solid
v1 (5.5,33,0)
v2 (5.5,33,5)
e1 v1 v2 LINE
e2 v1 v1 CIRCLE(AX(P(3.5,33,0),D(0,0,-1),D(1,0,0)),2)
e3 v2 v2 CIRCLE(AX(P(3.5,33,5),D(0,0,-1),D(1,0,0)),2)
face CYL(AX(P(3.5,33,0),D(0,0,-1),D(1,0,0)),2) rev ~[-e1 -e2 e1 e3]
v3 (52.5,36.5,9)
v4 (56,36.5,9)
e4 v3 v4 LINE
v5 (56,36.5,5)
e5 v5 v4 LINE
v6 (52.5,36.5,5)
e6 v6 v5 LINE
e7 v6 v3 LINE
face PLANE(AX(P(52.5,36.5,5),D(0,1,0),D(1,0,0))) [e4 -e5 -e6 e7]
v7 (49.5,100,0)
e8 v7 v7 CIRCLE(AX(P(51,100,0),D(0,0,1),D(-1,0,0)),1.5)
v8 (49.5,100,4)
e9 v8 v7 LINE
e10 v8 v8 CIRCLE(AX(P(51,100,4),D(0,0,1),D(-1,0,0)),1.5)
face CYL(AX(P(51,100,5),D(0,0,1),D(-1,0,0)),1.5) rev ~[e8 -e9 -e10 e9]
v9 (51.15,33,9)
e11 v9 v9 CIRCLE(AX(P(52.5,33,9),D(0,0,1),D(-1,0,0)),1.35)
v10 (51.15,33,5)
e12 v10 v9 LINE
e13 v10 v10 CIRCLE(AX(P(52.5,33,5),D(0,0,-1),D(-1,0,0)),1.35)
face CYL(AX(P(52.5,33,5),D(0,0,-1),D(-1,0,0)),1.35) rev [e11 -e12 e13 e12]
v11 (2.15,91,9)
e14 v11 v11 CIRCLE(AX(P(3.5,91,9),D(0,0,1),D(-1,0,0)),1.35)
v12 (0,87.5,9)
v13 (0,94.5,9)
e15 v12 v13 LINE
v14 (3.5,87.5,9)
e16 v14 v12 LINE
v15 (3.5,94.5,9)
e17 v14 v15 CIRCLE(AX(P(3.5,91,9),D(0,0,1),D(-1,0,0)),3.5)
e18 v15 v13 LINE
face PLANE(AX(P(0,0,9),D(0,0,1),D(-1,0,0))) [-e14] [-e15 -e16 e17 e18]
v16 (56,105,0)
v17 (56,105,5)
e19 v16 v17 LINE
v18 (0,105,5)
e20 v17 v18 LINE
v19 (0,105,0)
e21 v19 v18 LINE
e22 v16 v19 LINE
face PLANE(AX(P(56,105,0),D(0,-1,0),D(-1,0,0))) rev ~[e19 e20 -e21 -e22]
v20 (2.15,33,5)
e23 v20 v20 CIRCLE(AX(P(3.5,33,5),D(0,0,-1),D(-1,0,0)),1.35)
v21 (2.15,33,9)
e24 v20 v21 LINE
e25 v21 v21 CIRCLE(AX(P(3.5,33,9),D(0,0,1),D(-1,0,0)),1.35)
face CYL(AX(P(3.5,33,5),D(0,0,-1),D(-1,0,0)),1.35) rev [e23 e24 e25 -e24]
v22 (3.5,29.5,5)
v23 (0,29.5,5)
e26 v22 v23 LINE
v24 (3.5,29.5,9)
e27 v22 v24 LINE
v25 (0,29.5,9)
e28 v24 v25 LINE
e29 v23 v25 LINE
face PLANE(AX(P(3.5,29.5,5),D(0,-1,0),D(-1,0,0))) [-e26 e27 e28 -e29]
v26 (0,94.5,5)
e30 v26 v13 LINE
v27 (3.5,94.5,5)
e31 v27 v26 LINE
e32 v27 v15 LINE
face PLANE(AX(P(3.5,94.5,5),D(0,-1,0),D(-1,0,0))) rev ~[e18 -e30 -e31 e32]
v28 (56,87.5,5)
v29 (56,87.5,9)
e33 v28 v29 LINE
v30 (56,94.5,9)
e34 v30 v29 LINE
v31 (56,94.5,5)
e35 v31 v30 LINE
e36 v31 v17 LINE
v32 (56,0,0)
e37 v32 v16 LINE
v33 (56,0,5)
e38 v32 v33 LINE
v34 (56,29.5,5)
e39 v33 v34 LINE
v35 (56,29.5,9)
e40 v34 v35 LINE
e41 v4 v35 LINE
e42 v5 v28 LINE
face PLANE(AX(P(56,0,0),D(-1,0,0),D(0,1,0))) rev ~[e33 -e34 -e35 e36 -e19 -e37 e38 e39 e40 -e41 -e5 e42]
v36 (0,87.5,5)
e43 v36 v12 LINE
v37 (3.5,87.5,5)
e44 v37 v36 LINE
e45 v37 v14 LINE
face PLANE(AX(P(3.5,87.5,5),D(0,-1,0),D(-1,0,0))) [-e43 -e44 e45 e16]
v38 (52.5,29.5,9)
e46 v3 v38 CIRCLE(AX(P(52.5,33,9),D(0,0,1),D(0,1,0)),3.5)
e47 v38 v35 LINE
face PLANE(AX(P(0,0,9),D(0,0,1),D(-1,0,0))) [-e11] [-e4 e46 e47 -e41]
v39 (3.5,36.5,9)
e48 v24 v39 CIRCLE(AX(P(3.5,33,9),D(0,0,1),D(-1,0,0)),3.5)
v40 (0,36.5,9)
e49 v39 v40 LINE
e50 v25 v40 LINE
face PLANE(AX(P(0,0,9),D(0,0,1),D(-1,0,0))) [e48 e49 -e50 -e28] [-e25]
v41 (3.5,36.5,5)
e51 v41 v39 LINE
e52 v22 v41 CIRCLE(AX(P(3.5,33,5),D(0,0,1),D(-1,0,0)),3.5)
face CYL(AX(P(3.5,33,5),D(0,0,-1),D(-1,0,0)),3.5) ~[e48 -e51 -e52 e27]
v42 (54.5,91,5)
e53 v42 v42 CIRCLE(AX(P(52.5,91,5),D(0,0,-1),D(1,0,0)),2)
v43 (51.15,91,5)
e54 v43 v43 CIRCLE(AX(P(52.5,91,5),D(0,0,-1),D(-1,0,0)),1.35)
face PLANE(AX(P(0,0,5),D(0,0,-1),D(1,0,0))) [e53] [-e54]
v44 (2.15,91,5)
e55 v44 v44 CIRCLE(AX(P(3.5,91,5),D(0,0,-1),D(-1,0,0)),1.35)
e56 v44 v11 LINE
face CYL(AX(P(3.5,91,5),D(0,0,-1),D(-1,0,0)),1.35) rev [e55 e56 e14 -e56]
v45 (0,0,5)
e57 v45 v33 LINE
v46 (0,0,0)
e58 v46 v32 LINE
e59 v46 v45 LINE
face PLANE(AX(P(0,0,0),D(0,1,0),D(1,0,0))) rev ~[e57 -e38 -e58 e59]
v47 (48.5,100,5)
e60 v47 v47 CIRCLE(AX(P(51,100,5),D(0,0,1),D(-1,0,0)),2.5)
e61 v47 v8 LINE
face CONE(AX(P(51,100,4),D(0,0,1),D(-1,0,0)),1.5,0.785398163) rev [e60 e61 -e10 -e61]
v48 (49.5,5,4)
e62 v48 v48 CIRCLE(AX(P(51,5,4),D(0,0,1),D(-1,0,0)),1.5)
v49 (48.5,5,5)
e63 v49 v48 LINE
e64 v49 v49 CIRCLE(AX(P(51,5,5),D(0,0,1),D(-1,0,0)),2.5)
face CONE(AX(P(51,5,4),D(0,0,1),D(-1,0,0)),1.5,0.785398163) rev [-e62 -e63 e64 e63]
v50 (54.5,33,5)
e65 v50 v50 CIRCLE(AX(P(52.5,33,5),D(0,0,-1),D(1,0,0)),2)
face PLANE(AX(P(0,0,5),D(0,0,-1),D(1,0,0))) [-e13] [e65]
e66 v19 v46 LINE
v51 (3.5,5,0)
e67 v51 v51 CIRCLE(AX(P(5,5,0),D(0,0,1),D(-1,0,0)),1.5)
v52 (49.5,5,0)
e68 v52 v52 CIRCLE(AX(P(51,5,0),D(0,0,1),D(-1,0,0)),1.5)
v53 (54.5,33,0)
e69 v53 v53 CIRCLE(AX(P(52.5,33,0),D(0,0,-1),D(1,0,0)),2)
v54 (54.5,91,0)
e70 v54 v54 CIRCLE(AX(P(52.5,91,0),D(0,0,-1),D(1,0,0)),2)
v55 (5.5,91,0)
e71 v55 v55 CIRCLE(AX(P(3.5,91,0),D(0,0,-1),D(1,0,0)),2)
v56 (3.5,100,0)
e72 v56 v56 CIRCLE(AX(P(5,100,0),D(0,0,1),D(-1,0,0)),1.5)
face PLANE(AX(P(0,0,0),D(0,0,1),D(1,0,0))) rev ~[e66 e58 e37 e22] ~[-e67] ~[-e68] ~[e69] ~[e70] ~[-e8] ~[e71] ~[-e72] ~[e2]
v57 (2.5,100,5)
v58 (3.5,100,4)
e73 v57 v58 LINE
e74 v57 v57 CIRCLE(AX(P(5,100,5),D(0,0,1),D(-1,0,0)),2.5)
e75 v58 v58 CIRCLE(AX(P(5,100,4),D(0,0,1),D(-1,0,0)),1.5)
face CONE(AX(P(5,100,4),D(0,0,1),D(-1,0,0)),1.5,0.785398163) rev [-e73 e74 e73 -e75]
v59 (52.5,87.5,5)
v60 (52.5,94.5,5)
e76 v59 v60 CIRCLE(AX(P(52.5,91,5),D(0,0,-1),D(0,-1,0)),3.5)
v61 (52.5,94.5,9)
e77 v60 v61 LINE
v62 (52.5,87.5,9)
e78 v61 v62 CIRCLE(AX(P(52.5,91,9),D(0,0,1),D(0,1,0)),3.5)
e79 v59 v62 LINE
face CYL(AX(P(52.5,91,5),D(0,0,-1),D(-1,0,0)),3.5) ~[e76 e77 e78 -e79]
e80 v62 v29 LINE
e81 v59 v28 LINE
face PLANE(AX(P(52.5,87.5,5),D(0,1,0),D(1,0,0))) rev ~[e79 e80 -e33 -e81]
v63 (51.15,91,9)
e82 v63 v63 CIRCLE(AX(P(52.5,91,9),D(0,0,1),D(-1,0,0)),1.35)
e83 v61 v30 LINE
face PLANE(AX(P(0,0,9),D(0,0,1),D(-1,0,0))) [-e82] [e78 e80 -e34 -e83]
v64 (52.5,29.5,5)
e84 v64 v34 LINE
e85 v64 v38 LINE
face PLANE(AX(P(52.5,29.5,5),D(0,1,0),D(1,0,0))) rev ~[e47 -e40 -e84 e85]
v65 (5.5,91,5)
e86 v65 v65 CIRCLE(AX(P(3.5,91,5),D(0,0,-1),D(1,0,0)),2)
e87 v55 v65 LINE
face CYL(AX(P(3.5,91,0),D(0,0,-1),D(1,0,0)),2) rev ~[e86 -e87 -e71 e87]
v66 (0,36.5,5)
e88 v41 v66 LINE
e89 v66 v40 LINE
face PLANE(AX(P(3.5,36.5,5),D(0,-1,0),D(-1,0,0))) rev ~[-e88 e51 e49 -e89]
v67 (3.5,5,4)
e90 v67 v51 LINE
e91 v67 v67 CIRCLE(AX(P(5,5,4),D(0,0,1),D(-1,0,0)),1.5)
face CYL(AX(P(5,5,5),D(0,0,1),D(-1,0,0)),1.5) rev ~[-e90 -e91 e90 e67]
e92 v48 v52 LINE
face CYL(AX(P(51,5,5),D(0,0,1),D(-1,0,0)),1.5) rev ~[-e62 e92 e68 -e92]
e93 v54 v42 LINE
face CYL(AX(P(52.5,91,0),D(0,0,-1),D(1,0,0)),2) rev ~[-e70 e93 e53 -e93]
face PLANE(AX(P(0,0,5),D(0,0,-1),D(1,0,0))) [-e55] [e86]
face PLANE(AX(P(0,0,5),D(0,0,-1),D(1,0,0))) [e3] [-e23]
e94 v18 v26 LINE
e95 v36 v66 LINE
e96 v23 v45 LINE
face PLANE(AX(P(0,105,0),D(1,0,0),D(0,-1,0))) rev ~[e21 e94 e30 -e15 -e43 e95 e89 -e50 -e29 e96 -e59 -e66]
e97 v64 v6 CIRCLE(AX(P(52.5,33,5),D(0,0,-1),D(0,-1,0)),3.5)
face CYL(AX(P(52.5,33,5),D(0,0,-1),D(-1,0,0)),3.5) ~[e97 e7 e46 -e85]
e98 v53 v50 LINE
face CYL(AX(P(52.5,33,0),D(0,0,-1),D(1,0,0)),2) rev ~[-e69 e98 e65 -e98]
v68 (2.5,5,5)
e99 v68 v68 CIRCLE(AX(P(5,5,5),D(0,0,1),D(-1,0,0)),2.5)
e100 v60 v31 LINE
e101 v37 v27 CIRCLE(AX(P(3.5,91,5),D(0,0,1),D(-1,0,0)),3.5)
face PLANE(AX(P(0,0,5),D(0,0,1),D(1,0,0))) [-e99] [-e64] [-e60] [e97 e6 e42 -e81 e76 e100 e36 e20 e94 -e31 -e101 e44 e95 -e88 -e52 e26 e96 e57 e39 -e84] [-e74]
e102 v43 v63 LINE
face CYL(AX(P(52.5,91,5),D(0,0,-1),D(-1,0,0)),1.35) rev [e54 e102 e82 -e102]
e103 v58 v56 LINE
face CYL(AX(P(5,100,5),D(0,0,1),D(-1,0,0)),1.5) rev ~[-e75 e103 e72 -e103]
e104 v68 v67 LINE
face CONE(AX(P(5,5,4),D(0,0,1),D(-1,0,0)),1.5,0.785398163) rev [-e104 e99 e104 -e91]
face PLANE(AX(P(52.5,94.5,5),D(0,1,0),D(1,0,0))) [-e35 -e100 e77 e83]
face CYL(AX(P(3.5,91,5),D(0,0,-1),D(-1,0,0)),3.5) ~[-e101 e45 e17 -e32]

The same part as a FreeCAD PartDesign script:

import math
import FreeCAD as App
import Part
import Sketcher

V = App.Vector


def edges_at(feature, points):
    """Names of the edges that pass closest to the given points."""
    edges = feature.Shape.Edges
    near = lambda p: min(range(len(edges)), key=lambda i: edges[i].distToShape(Part.Vertex(*p))[0])
    return sorted({f"Edge{near(p) + 1}" for p in points})

doc = App.newDocument("Part")
body = doc.addObject("PartDesign::Body", "Body")

# Sketch on XY plane
sketch1 = body.newObject("Sketcher::SketchObject", "Sketch")
sketch1.AttachmentSupport = (doc.getObject("XY_Plane"), [""])
sketch1.MapMode = "FlatFace"
sketch1.addGeometry([
    Part.LineSegment(V(0, 105, 0), V(0, 0, 0)),
    Part.LineSegment(V(0, 0, 0), V(56, 0, 0)),
    Part.LineSegment(V(56, 0, 0), V(56, 105, 0)),
    Part.LineSegment(V(56, 105, 0), V(0, 105, 0)),
], False)
sketch1.addConstraint([
    Sketcher.Constraint("Coincident", 0, 2, 1, 1),
    Sketcher.Constraint("Coincident", 1, 2, 2, 1),
    Sketcher.Constraint("Coincident", 2, 2, 3, 1),
    Sketcher.Constraint("Coincident", 3, 2, 0, 1),
    Sketcher.Constraint("Vertical", 0),
    Sketcher.Constraint("Horizontal", 1),
    Sketcher.Constraint("Vertical", 2),
    Sketcher.Constraint("Horizontal", 3),
    Sketcher.Constraint("Coincident", 0, 2, -1, 1),
    Sketcher.Constraint("DistanceX", 1, 1, 1, 2, 56.0),
    Sketcher.Constraint("DistanceY", 0, 2, 0, 1, 105.0),
])
pad1 = body.newObject("PartDesign::Pad", "Pad")
pad1.Profile = sketch1
pad1.Length = 5

# Sketch on XY plane
sketch2 = body.newObject("Sketcher::SketchObject", "Sketch001")
sketch2.AttachmentSupport = (doc.getObject("XY_Plane"), [""])
sketch2.MapMode = "FlatFace"
sketch2.AttachmentOffset = App.Placement(V(0, 0, 5), App.Rotation())
sketch2.addGeometry([
    Part.LineSegment(V(3.5, 94.5, 0), V(0, 94.5, 0)),  # 0
    Part.LineSegment(V(0, 94.5, 0), V(0, 87.5, 0)),  # 1
    Part.LineSegment(V(0, 87.5, 0), V(3.5, 87.5, 0)),  # 2
    Part.ArcOfCircle(Part.Circle(V(3.5, 91, 0), V(0, 0, 1), 3.5), math.radians(-90), math.radians(90)),  # 3
    Part.Circle(V(3.5, 91, 0), V(0, 0, 1), 1.4),  # 4
    Part.LineSegment(V(56, 94.5, 0), V(52.5, 94.5, 0)),  # 5
    Part.ArcOfCircle(Part.Circle(V(52.5, 91, 0), V(0, 0, 1), 3.5), math.radians(90), math.radians(270)),  # 6
    Part.LineSegment(V(52.5, 87.5, 0), V(56, 87.5, 0)),  # 7
    Part.LineSegment(V(56, 87.5, 0), V(56, 94.5, 0)),  # 8
    Part.Circle(V(52.5, 91, 0), V(0, 0, 1), 1.4),  # 9
    Part.LineSegment(V(3.5, 36.5, 0), V(0, 36.5, 0)),  # 10
    Part.LineSegment(V(0, 36.5, 0), V(0, 29.5, 0)),  # 11
    Part.LineSegment(V(0, 29.5, 0), V(3.5, 29.5, 0)),  # 12
    Part.ArcOfCircle(Part.Circle(V(3.5, 33, 0), V(0, 0, 1), 3.5), math.radians(-90), math.radians(90)),  # 13
    Part.Circle(V(3.5, 33, 0), V(0, 0, 1), 1.4),  # 14
    Part.LineSegment(V(56, 36.5, 0), V(52.5, 36.5, 0)),  # 15
    Part.ArcOfCircle(Part.Circle(V(52.5, 33, 0), V(0, 0, 1), 3.5), math.radians(90), math.radians(270)),  # 16
    Part.LineSegment(V(52.5, 29.5, 0), V(56, 29.5, 0)),  # 17
    Part.LineSegment(V(56, 29.5, 0), V(56, 36.5, 0)),  # 18
    Part.Circle(V(52.5, 33, 0), V(0, 0, 1), 1.4),  # 19
], False)
sketch2.addConstraint([
    Sketcher.Constraint("Coincident", 0, 2, 1, 1),
    Sketcher.Constraint("Coincident", 1, 2, 2, 1),
    Sketcher.Constraint("Tangent", 2, 2, 3, 1),
    Sketcher.Constraint("Tangent", 3, 2, 0, 1),
    Sketcher.Constraint("Tangent", 5, 2, 6, 1),
    Sketcher.Constraint("Tangent", 6, 2, 7, 1),
    Sketcher.Constraint("Coincident", 7, 2, 8, 1),
    Sketcher.Constraint("Coincident", 8, 2, 5, 1),
    Sketcher.Constraint("Coincident", 10, 2, 11, 1),
    Sketcher.Constraint("Coincident", 11, 2, 12, 1),
    Sketcher.Constraint("Tangent", 12, 2, 13, 1),
    Sketcher.Constraint("Tangent", 13, 2, 10, 1),
    Sketcher.Constraint("Tangent", 15, 2, 16, 1),
    Sketcher.Constraint("Tangent", 16, 2, 17, 1),
    Sketcher.Constraint("Coincident", 17, 2, 18, 1),
    Sketcher.Constraint("Coincident", 18, 2, 15, 1),
    Sketcher.Constraint("Horizontal", 0),
    Sketcher.Constraint("Vertical", 1),
    Sketcher.Constraint("Horizontal", 2),
    Sketcher.Constraint("Horizontal", 5),
    Sketcher.Constraint("Horizontal", 7),
    Sketcher.Constraint("Vertical", 8),
    Sketcher.Constraint("Horizontal", 10),
    Sketcher.Constraint("Vertical", 11),
    Sketcher.Constraint("Horizontal", 12),
    Sketcher.Constraint("Horizontal", 15),
    Sketcher.Constraint("Horizontal", 17),
    Sketcher.Constraint("Vertical", 18),
    Sketcher.Constraint("Coincident", 4, 3, 3, 3),
    Sketcher.Constraint("Coincident", 9, 3, 6, 3),
    Sketcher.Constraint("Coincident", 14, 3, 13, 3),
    Sketcher.Constraint("Coincident", 19, 3, 16, 3),
    Sketcher.Constraint("Equal", 3, 6),
    Sketcher.Constraint("Equal", 4, 9),
    Sketcher.Constraint("Equal", 6, 13),
    Sketcher.Constraint("Equal", 9, 14),
    Sketcher.Constraint("Equal", 13, 16),
    Sketcher.Constraint("Equal", 14, 19),
    Sketcher.Constraint("PointOnObject", 0, 2, -2),
    Sketcher.Constraint("PointOnObject", 10, 2, -2),
    Sketcher.Constraint("Horizontal", 4, 3, 6, 3),
    Sketcher.Constraint("Horizontal", 14, 3, 16, 3),
    Sketcher.Constraint("Vertical", 4, 3, 13, 3),
    Sketcher.Constraint("Vertical", 9, 3, 16, 3),
    Sketcher.Constraint("Vertical", 8, 2, 17, 2),
    Sketcher.Constraint("Equal", 2, 5),
    Sketcher.Constraint("Diameter", 4, 2.7),
    Sketcher.Constraint("Radius", 3, 3.5),
    Sketcher.Constraint("DistanceX", 0, 2, 0, 1, 3.5),
    Sketcher.Constraint("DistanceY", -1, 1, 13, 3, 33.0),
    Sketcher.Constraint("DistanceX", -1, 1, 7, 2, 56.0),
    Sketcher.Constraint("DistanceY", 13, 3, 3, 3, 58.0),
])
pad2 = body.newObject("PartDesign::Pad", "Pad001")
pad2.Profile = sketch2
pad2.Length = 4

# Sketch on XY plane
sketch3 = body.newObject("Sketcher::SketchObject", "Sketch002")
sketch3.AttachmentSupport = (doc.getObject("XY_Plane"), [""])
sketch3.MapMode = "FlatFace"
sketch3.AttachmentOffset = App.Placement(V(0, 0, 5), App.Rotation())
sketch3.addGeometry([
    Part.Circle(V(3.5, 91, 0), V(0, 0, 1), 1.4),
    Part.Circle(V(52.5, 91, 0), V(0, 0, 1), 1.4),
    Part.Circle(V(3.5, 33, 0), V(0, 0, 1), 1.4),
    Part.Circle(V(52.5, 33, 0), V(0, 0, 1), 1.4),
], False)
sketch3.addConstraint([
    Sketcher.Constraint("Equal", 0, 1),
    Sketcher.Constraint("Equal", 1, 2),
    Sketcher.Constraint("Equal", 2, 3),
    Sketcher.Constraint("Horizontal", 0, 3, 1, 3),
    Sketcher.Constraint("Horizontal", 2, 3, 3, 3),
    Sketcher.Constraint("Vertical", 0, 3, 2, 3),
    Sketcher.Constraint("Vertical", 1, 3, 3, 3),
    Sketcher.Constraint("Diameter", 0, 2.7),
    Sketcher.Constraint("DistanceY", -1, 1, 2, 3, 33.0),
    Sketcher.Constraint("DistanceX", 0, 3, 1, 3, 49.0),
    Sketcher.Constraint("DistanceY", 2, 3, 0, 3, 58.0),
    Sketcher.Constraint("DistanceX", -1, 1, 0, 3, 3.5),
])
pocket1 = body.newObject("PartDesign::Pocket", "Pocket")
pocket1.Profile = sketch3
pocket1.Length = 7

# Sketch on XY plane
sketch4 = body.newObject("Sketcher::SketchObject", "Sketch003")
sketch4.AttachmentSupport = (doc.getObject("XY_Plane"), [""])
sketch4.MapMode = "FlatFace"
sketch4.AttachmentOffset = App.Placement(V(0, 0, 5), App.Rotation())
sketch4.addGeometry([
    Part.Circle(V(5, 5, 0), V(0, 0, 1), 1.5),
    Part.Circle(V(51, 5, 0), V(0, 0, 1), 1.5),
    Part.Circle(V(51, 100, 0), V(0, 0, 1), 1.5),
    Part.Circle(V(5, 100, 0), V(0, 0, 1), 1.5),
], False)
sketch4.addConstraint([
    Sketcher.Constraint("Equal", 0, 1),
    Sketcher.Constraint("Equal", 1, 2),
    Sketcher.Constraint("Equal", 2, 3),
    Sketcher.Constraint("Horizontal", 0, 3, 1, 3),
    Sketcher.Constraint("Horizontal", 2, 3, 3, 3),
    Sketcher.Constraint("Vertical", 1, 3, 2, 3),
    Sketcher.Constraint("Vertical", 0, 3, 3, 3),
    Sketcher.Constraint("Diameter", 0, 3.0),
    Sketcher.Constraint("DistanceX", -1, 1, 0, 3, 5.0),
    Sketcher.Constraint("DistanceY", -1, 1, 0, 3, 5.0),
    Sketcher.Constraint("DistanceX", -1, 1, 1, 3, 51.0),
    Sketcher.Constraint("DistanceY", -1, 1, 2, 3, 100.0),
])
pocket2 = body.newObject("PartDesign::Pocket", "Pocket001")
pocket2.Profile = sketch4
pocket2.Length = 5
doc.recompute()

chamfer = body.newObject("PartDesign::Chamfer", "Chamfer")
chamfer.Base = (pocket2, edges_at(pocket2, [
    (6.399, 4.458, 5),
    (52.398, 4.458, 5),
    (52.398, 99.458, 5),
    (6.399, 99.458, 5),
]))
chamfer.ChamferType = "Two distances"
chamfer.Size = 1
chamfer.Size2 = 1

# Sketch on XY plane
sketch5 = body.newObject("Sketcher::SketchObject", "Sketch004")
sketch5.AttachmentSupport = (doc.getObject("XY_Plane"), [""])
sketch5.MapMode = "FlatFace"
sketch5.addGeometry([
    Part.Circle(V(3.5, 91, 0), V(0, 0, 1), 2),  # 0
    Part.Circle(V(3.5, 91, 0), V(0, 0, 1), 1.4),  # 1
    Part.Circle(V(52.5, 91, 0), V(0, 0, 1), 2),  # 2
    Part.Circle(V(52.5, 91, 0), V(0, 0, 1), 1.4),  # 3
    Part.Circle(V(52.5, 33, 0), V(0, 0, 1), 2),  # 4
    Part.Circle(V(52.5, 33, 0), V(0, 0, 1), 1.4),  # 5
    Part.Circle(V(3.5, 33, 0), V(0, 0, 1), 2),  # 6
    Part.Circle(V(3.5, 33, 0), V(0, 0, 1), 1.4),  # 7
], False)
sketch5.addConstraint([
    Sketcher.Constraint("Coincident", 1, 3, 0, 3),
    Sketcher.Constraint("Coincident", 3, 3, 2, 3),
    Sketcher.Constraint("Coincident", 5, 3, 4, 3),
    Sketcher.Constraint("Coincident", 7, 3, 6, 3),
    Sketcher.Constraint("Equal", 0, 2),
    Sketcher.Constraint("Equal", 1, 3),
    Sketcher.Constraint("Equal", 2, 4),
    Sketcher.Constraint("Equal", 3, 5),
    Sketcher.Constraint("Equal", 4, 6),
    Sketcher.Constraint("Equal", 5, 7),
    Sketcher.Constraint("Horizontal", 1, 3, 2, 3),
    Sketcher.Constraint("Horizontal", 5, 3, 6, 3),
    Sketcher.Constraint("Vertical", 3, 3, 4, 3),
    Sketcher.Constraint("Vertical", 1, 3, 6, 3),
    Sketcher.Constraint("Diameter", 0, 4.0),
    Sketcher.Constraint("Diameter", 1, 2.7),
    Sketcher.Constraint("DistanceY", -1, 1, 0, 3, 91.0),
    Sketcher.Constraint("DistanceY", -1, 1, 4, 3, 33.0),
    Sketcher.Constraint("DistanceX", 0, 3, 2, 3, 49.0),
    Sketcher.Constraint("DistanceX", -1, 1, 0, 3, 3.5),
])
pocket3 = body.newObject("PartDesign::Pocket", "Pocket002")
pocket3.Profile = sketch5
pocket3.Length = 5
pocket3.Reversed = True

doc.recompute()
